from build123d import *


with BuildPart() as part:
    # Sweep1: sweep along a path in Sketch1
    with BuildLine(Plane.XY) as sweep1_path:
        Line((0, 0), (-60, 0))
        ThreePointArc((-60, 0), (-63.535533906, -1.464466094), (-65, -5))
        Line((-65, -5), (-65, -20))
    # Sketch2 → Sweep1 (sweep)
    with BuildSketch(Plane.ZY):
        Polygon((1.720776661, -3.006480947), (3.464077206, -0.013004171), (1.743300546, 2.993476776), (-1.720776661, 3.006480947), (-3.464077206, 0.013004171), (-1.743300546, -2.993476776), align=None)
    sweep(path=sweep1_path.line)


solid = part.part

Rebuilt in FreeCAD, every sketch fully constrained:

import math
import FreeCAD as App
import Part
import Sketcher


def add_polygon(sketch, points):
    """Adds a closed chain of lines whose ends are joined by coincident constraints."""
    first, n = sketch.GeometryCount, len(points)
    for a, b in zip(points, points[1:] + points[:1]):
        sketch.addGeometry(Part.LineSegment(App.Vector(*a, 0), App.Vector(*b, 0)), False)
    for i in range(n):
        sketch.addConstraint(Sketcher.Constraint("Coincident", first + i, 2, first + (i + 1) % n, 1))

doc = App.newDocument("Part")
body = doc.addObject("PartDesign::Body", "Body")

sketch1 = doc.addObject("Sketcher::SketchObject", "Sketch")
body.addObject(sketch1)
sketch1.AttachmentSupport = (doc.YZ_Plane, [""])
sketch1.MapMode = "FlatFace"
add_polygon(sketch1, [(-3.006481, 1.720777), (-0.013004, 3.464077), (2.993477, 1.743301), (3.006481, -1.720777), (0.013004, -3.464077), (-2.993477, -1.743301)])
sketch1.addConstraint([
    Sketcher.Constraint("Symmetric", 0, 2, 3, 2, -1, 1),
    Sketcher.Constraint("Symmetric", 1, 2, 4, 2, -1, 1),
    Sketcher.Constraint("Symmetric", 2, 2, 5, 2, -1, 1),
    Sketcher.Constraint("Equal", 0, 1),
    Sketcher.Constraint("Equal", 1, 2),
    Sketcher.Constraint("Distance", 0, 3.464102),
    Sketcher.Constraint("DistanceY", -1, 1, 1, 2, 1.743301),
    Sketcher.Constraint("DistanceY", 3, 2, 2, 2, 1.743301),
    Sketcher.Constraint("DistanceX", -1, 1, 2, 2, 3.006481),
])

sketch2 = doc.addObject("Sketcher::SketchObject", "Sketch001")
body.addObject(sketch2)
sketch2.AttachmentSupport = (doc.XY_Plane, [""])
sketch2.MapMode = "FlatFace"
sketch2.addGeometry([
    Part.LineSegment(App.Vector(0, 0, 0), App.Vector(-60, 0, 0)),
    Part.ArcOfCircle(Part.Circle(App.Vector(-60, -5, 0), App.Vector(0, 0, 1), 5), math.radians(90), math.radians(180)),
    Part.LineSegment(App.Vector(-65, -5, 0), App.Vector(-65, -20, 0)),
], False)
sketch2.addConstraint([
    Sketcher.Constraint("Tangent", 0, 2, 1, 1),
    Sketcher.Constraint("Tangent", 1, 2, 2, 1),
    Sketcher.Constraint("Horizontal", 0),
    Sketcher.Constraint("Vertical", 2),
    Sketcher.Constraint("Coincident", 0, 1, -1, 1),
    Sketcher.Constraint("Radius", 1, 5.0),
    Sketcher.Constraint("DistanceX", 0, 2, 0, 1, 60.0),
    Sketcher.Constraint("DistanceY", 2, 2, 2, 1, 15.0),
])
doc.recompute()

additivepipe = doc.addObject("PartDesign::AdditivePipe", "AdditivePipe")
body.addObject(additivepipe)
additivepipe.Profile = sketch1
additivepipe.Spine = (sketch2, ["Edge1", "Edge2", "Edge3"])

doc.recompute()
